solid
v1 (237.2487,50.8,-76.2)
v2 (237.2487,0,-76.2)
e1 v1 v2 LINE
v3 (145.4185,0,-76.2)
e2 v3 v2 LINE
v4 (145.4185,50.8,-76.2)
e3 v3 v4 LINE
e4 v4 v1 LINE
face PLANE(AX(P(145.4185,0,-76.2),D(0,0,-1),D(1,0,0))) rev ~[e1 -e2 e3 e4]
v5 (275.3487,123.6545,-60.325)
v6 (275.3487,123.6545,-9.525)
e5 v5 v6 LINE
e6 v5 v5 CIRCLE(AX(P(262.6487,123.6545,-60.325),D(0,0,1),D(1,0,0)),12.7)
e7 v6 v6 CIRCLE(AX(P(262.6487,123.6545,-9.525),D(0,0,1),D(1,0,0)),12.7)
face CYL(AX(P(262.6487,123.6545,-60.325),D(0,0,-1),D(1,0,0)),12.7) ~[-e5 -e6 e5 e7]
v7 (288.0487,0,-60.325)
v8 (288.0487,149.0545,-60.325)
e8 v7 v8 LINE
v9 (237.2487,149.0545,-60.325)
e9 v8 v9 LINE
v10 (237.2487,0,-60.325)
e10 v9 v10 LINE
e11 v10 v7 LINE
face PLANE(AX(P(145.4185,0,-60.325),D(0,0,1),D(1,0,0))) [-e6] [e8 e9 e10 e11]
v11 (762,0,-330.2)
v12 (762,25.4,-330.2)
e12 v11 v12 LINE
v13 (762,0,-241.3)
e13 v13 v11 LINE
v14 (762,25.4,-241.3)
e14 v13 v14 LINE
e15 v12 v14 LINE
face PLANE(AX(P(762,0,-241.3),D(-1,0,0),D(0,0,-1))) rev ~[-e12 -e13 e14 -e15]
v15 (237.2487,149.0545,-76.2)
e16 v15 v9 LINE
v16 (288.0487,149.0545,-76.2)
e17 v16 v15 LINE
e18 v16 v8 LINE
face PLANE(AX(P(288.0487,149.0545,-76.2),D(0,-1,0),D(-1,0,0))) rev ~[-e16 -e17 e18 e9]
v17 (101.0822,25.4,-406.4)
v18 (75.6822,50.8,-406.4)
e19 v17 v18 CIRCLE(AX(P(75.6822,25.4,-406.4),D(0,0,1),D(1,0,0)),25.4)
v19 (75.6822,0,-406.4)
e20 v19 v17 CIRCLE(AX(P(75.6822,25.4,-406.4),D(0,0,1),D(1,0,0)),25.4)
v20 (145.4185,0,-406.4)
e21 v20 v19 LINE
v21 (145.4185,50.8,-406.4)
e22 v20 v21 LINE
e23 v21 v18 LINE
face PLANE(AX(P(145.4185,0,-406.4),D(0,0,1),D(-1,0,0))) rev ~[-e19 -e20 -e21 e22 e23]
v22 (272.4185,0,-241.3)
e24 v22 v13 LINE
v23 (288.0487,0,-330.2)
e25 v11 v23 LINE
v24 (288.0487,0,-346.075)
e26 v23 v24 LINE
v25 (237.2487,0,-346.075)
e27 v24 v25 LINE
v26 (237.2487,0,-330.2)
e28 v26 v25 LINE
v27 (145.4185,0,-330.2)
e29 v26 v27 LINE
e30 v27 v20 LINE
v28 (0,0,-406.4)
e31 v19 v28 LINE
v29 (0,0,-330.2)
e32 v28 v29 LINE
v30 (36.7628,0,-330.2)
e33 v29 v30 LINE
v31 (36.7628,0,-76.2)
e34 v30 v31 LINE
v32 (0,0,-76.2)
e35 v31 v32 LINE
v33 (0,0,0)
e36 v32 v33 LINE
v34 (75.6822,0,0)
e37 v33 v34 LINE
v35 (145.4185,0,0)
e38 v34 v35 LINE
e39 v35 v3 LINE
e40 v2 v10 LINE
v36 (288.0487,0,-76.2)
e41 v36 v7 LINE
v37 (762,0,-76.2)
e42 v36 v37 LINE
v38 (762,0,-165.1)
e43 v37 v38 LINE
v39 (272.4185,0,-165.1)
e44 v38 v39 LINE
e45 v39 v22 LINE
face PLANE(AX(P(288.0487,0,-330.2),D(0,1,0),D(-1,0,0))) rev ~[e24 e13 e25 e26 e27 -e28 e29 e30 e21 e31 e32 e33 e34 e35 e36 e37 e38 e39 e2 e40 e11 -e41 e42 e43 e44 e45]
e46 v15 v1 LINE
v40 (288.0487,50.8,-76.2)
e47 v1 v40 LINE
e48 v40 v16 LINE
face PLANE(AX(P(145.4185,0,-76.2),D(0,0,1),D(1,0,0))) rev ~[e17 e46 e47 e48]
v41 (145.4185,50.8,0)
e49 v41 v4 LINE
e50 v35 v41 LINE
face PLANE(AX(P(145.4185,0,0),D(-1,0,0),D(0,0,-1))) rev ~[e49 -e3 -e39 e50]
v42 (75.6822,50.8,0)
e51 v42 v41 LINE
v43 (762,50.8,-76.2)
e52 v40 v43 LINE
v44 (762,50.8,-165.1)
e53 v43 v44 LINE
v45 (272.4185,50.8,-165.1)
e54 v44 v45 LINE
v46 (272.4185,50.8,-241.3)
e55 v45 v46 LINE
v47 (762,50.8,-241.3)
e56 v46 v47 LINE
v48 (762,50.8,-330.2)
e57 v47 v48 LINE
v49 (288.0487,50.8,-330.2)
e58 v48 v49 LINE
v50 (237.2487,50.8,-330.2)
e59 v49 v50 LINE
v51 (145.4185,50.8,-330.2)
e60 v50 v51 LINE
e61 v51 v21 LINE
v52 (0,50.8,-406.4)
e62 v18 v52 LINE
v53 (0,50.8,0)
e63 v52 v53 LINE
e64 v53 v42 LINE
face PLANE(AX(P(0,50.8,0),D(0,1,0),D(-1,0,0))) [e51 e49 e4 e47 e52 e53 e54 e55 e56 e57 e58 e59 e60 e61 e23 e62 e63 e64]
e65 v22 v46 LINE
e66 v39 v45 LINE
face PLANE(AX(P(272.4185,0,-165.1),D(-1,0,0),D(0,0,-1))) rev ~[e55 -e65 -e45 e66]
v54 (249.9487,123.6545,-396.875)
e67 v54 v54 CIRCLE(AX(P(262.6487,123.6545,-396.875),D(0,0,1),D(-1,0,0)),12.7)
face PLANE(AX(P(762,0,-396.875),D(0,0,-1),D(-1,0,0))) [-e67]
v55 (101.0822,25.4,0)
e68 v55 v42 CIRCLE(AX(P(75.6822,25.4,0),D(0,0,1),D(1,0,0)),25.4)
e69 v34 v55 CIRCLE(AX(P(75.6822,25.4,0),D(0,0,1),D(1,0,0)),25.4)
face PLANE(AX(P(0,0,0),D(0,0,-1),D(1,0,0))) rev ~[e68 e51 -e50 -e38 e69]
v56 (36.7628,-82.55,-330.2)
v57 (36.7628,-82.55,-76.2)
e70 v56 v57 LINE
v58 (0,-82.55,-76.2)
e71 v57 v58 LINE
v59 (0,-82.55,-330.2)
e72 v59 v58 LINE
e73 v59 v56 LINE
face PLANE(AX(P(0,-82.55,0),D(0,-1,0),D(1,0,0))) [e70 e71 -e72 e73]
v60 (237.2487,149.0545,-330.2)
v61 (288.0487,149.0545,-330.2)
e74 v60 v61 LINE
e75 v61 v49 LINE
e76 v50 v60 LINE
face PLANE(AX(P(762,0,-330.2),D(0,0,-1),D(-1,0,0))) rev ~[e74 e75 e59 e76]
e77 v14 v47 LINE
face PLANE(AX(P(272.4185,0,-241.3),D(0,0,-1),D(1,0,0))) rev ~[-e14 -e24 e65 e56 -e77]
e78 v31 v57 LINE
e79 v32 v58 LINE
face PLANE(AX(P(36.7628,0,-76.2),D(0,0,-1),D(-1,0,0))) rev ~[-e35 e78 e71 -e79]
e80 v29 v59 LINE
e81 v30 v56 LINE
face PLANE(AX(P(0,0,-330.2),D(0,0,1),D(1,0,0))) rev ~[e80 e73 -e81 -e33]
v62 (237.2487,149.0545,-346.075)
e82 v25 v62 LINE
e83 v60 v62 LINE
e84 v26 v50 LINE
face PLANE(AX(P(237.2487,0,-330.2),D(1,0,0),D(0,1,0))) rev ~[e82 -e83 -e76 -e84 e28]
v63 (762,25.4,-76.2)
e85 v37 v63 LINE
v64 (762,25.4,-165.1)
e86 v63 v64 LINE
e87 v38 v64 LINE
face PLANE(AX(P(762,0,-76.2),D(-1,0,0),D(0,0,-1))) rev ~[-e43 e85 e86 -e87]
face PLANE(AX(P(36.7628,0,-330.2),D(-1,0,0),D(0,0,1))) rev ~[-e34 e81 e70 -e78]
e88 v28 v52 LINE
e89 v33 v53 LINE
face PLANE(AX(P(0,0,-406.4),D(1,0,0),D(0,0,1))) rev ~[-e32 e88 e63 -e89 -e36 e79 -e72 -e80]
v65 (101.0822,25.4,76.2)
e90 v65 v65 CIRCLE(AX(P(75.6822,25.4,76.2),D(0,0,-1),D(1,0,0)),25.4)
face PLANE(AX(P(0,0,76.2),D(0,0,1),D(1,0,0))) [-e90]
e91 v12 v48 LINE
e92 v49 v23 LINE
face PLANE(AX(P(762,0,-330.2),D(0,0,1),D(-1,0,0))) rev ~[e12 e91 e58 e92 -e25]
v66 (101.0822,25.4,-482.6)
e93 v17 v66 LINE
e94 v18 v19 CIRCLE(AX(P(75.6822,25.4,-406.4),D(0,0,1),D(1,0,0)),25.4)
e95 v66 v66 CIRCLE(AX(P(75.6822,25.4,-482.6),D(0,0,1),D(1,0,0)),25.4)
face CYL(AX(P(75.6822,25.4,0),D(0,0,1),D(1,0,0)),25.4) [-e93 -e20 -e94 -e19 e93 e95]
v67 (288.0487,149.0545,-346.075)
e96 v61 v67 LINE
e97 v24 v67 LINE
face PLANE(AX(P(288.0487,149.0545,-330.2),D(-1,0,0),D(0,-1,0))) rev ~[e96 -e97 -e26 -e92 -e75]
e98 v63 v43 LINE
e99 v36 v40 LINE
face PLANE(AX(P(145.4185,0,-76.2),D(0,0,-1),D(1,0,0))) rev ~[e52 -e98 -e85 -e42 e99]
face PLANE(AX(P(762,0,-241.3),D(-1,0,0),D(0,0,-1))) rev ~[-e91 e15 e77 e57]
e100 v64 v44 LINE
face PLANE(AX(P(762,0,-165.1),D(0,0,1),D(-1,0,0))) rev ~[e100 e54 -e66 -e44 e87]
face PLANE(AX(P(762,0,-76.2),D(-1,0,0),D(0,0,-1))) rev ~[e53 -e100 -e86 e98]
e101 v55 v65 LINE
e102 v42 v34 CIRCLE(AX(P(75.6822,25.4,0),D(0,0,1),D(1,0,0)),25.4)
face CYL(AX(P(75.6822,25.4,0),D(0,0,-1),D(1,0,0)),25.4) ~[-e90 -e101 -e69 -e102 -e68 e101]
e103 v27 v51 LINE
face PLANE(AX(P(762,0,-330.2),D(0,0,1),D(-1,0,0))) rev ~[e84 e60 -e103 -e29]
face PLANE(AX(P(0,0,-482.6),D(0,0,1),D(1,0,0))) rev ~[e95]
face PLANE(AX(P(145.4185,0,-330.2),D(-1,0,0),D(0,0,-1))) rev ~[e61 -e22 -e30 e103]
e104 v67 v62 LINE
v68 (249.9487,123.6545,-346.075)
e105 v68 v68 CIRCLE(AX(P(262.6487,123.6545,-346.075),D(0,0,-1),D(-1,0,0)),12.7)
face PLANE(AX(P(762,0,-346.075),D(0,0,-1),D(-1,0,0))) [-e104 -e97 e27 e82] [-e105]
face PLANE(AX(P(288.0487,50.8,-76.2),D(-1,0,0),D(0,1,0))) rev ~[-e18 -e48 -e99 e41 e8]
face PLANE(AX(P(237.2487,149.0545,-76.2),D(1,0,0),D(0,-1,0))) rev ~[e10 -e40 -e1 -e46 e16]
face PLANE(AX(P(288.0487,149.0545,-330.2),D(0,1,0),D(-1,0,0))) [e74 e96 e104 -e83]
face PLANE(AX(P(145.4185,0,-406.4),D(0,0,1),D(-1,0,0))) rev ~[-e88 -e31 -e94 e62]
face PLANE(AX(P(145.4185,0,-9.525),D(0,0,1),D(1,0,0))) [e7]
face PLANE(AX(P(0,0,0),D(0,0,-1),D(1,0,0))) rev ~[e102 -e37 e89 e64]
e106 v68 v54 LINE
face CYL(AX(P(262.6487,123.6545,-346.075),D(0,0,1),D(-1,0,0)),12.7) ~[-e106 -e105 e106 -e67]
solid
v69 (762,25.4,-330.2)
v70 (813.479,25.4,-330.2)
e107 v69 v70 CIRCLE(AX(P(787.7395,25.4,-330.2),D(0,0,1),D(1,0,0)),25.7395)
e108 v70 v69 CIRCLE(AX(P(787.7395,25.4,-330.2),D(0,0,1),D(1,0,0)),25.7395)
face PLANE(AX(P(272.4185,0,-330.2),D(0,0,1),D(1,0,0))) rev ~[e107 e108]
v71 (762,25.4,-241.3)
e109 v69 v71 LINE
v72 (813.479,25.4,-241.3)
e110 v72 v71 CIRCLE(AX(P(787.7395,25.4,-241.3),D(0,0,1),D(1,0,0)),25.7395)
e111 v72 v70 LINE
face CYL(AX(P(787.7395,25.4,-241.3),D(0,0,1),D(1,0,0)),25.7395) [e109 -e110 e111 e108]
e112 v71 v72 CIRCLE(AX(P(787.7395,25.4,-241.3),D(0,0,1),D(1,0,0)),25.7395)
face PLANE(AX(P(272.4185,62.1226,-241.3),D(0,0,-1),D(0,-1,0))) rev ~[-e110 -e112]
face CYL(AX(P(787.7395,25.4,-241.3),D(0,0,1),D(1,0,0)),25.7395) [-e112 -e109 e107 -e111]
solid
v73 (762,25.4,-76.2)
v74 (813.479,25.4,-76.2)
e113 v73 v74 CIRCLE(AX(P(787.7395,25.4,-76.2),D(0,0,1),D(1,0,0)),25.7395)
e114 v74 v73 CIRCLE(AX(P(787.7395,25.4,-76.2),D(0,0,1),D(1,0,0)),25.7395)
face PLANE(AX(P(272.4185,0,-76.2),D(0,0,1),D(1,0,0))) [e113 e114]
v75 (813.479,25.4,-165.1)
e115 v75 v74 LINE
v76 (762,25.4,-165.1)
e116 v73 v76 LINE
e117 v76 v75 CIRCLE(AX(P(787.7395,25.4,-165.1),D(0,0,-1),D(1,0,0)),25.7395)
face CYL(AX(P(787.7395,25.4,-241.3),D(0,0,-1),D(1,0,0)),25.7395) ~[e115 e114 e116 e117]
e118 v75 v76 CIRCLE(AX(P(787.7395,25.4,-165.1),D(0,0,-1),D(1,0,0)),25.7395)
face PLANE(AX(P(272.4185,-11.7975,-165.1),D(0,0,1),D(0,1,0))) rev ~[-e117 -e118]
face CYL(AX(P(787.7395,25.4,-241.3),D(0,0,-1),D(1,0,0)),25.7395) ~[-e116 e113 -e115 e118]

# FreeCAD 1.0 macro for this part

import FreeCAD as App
import Part
import Sketcher
from FreeCAD import Vector
Q = App.Units.Quantity

doc = App.newDocument("Part")
body = doc.addObject("PartDesign::Body", "Body")
body.AllowCompound = True

sketch1 = body.newObject("Sketcher::SketchObject", "Sketch")
sketch1.AttachmentSupport = (doc.getObject("XZ_Plane"), [""])
sketch1.MapMode = "FlatFace"
sketch1.addGeometry(Part.LineSegment(Vector(0, -406, 0), Vector(0, 0, 0)), False)
sketch1.addGeometry(Part.LineSegment(Vector(0, 0, 0), Vector(145, 0, 0)), False)
sketch1.addGeometry(Part.LineSegment(Vector(145, 0, 0), Vector(145, -76, 0)), False)
sketch1.addGeometry(Part.LineSegment(Vector(145, -76, 0), Vector(762, -76, 0)), False)
sketch1.addGeometry(Part.LineSegment(Vector(762, -76, 0), Vector(762, -165, 0)), False)
sketch1.addGeometry(Part.LineSegment(Vector(762, -165, 0), Vector(272, -165, 0)), False)
sketch1.addGeometry(Part.LineSegment(Vector(272, -165, 0), Vector(272, -241, 0)), False)
sketch1.addGeometry(Part.LineSegment(Vector(272, -241, 0), Vector(762, -241, 0)), False)
sketch1.addGeometry(Part.LineSegment(Vector(762, -241, 0), Vector(762, -330, 0)), False)
sketch1.addGeometry(Part.LineSegment(Vector(762, -330, 0), Vector(145, -330, 0)), False)
sketch1.addGeometry(Part.LineSegment(Vector(145, -330, 0), Vector(145, -406, 0)), False)
sketch1.addGeometry(Part.LineSegment(Vector(145, -406, 0), Vector(0, -406, 0)), False)
sketch1.addConstraint(Sketcher.Constraint("Coincident", 0, 2, 1, 1))
sketch1.addConstraint(Sketcher.Constraint("Coincident", 1, 2, 2, 1))
sketch1.addConstraint(Sketcher.Constraint("Coincident", 2, 2, 3, 1))
sketch1.addConstraint(Sketcher.Constraint("Coincident", 3, 2, 4, 1))
sketch1.addConstraint(Sketcher.Constraint("Coincident", 4, 2, 5, 1))
sketch1.addConstraint(Sketcher.Constraint("Coincident", 5, 2, 6, 1))
sketch1.addConstraint(Sketcher.Constraint("Coincident", 6, 2, 7, 1))
sketch1.addConstraint(Sketcher.Constraint("Coincident", 7, 2, 8, 1))
sketch1.addConstraint(Sketcher.Constraint("Coincident", 8, 2, 9, 1))
sketch1.addConstraint(Sketcher.Constraint("Coincident", 9, 2, 10, 1))
sketch1.addConstraint(Sketcher.Constraint("Coincident", 10, 2, 11, 1))
sketch1.addConstraint(Sketcher.Constraint("Coincident", 11, 2, 0, 1))
sketch1.addConstraint(Sketcher.Constraint("Vertical", 0))
sketch1.addConstraint(Sketcher.Constraint("Horizontal", 1))
sketch1.addConstraint(Sketcher.Constraint("Vertical", 2))
sketch1.addConstraint(Sketcher.Constraint("Horizontal", 3))
sketch1.addConstraint(Sketcher.Constraint("Vertical", 4))
sketch1.addConstraint(Sketcher.Constraint("Horizontal", 5))
sketch1.addConstraint(Sketcher.Constraint("Vertical", 6))
sketch1.addConstraint(Sketcher.Constraint("Horizontal", 7))
sketch1.addConstraint(Sketcher.Constraint("Vertical", 8))
sketch1.addConstraint(Sketcher.Constraint("Horizontal", 9))
sketch1.addConstraint(Sketcher.Constraint("Vertical", 10))
sketch1.addConstraint(Sketcher.Constraint("Horizontal", 11))
sketch1.addConstraint(Sketcher.Constraint("Coincident", 0, 2, -1, 1))
sketch1.addConstraint(Sketcher.Constraint("Vertical", 4, 2, 7, 2))
sketch1.addConstraint(Sketcher.Constraint("Vertical", 2, 2, 9, 2))
sketch1.addConstraint(Sketcher.Constraint("Equal", 2, 6))
sketch1.addConstraint(Sketcher.Constraint("Equal", 4, 8))
sketch1.addConstraint(Sketcher.Constraint("Equal", 6, 10))
sketch1.addConstraint(Sketcher.Constraint("DistanceY", 0, 1, 0, 2, Q("16 in")))
sketch1.addConstraint(Sketcher.Constraint("DistanceY", 2, 2, 2, 1, Q("3 in")))
sketch1.addConstraint(Sketcher.Constraint("DistanceX", -1, 1, 3, 2, Q("30 in")))
sketch1.addConstraint(Sketcher.Constraint("DistanceX", 2, 2, 5, 2, Q("5 in")))
sketch1.addConstraint(Sketcher.Constraint("DistanceX", 1, 1, 1, 2, 145.4185))
pad1 = body.newObject("PartDesign::Pad", "Pad")
pad1.Profile = sketch1
pad1.Length = Q("2 in")
pad1.Reversed = True

sketch2 = body.newObject("Sketcher::SketchObject", "Sketch001")
sketch2.AttachmentSupport = (doc.getObject("XY_Plane"), [""])
sketch2.MapMode = "FlatFace"
sketch2.addGeometry(Part.Circle(Vector(76, 25, 0), Vector(0, 0, 1), 25), False)
sketch2.addConstraint(Sketcher.Constraint("Diameter", 0, Q("2 in")))
sketch2.addConstraint(Sketcher.Constraint("DistanceY", -1, 1, 0, 3, Q("1 in")))
sketch2.addConstraint(Sketcher.Constraint("DistanceX", -1, 1, 0, 3, 75.6822))
pad2 = body.newObject("PartDesign::Pad", "Pad001")
pad2.Profile = sketch2
pad2.Type = "TwoLengths"
pad2.Length = Q("3 in")
pad2.Length2 = Q("19 in")

sketch3 = body.newObject("Sketcher::SketchObject", "Sketch002")
sketch3.AttachmentSupport = (doc.getObject("XY_Plane"), [""])
sketch3.MapMode = "FlatFace"
sketch3.AttachmentOffset = App.Placement(Vector(0, 0, -3 * 25.4), App.Rotation())
sketch3.addGeometry(Part.LineSegment(Vector(237, 149, 0), Vector(237, 0, 0)), False)
sketch3.addGeometry(Part.LineSegment(Vector(237, 0, 0), Vector(288, 0, 0)), False)
sketch3.addGeometry(Part.LineSegment(Vector(288, 0, 0), Vector(288, 149, 0)), False)
sketch3.addGeometry(Part.LineSegment(Vector(288, 149, 0), Vector(237, 149, 0)), False)
sketch3.addConstraint(Sketcher.Constraint("Coincident", 0, 2, 1, 1))
sketch3.addConstraint(Sketcher.Constraint("Coincident", 1, 2, 2, 1))
sketch3.addConstraint(Sketcher.Constraint("Coincident", 2, 2, 3, 1))
sketch3.addConstraint(Sketcher.Constraint("Coincident", 3, 2, 0, 1))
sketch3.addConstraint(Sketcher.Constraint("Vertical", 0))
sketch3.addConstraint(Sketcher.Constraint("Horizontal", 1))
sketch3.addConstraint(Sketcher.Constraint("Vertical", 2))
sketch3.addConstraint(Sketcher.Constraint("Horizontal", 3))
sketch3.addConstraint(Sketcher.Constraint("PointOnObject", 0, 2, -1))
sketch3.addConstraint(Sketcher.Constraint("DistanceX", 1, 1, 1, 2, Q("2 in")))
sketch3.addConstraint(Sketcher.Constraint("DistanceY", 0, 2, 0, 1, 149.0545))
sketch3.addConstraint(Sketcher.Constraint("DistanceX", -1, 1, 0, 2, Q("9.3405 in")))
pad3 = body.newObject("PartDesign::Pad", "Pad002")
pad3.Profile = sketch3
pad3.Length = Q("0.625 in")

sketch4 = body.newObject("Sketcher::SketchObject", "Sketch003")
sketch4.AttachmentSupport = (doc.getObject("XY_Plane"), [""])
sketch4.MapMode = "FlatFace"
sketch4.AttachmentOffset = App.Placement(Vector(0, 0, -9.5 * 25.4), App.Rotation())
sketch4.addGeometry(Part.Circle(Vector(788, 25, 0), Vector(0, 0, 1), 26), False)
sketch4.addConstraint(Sketcher.Constraint("DistanceY", -1, 1, 0, 3, Q("1 in")))
sketch4.addConstraint(Sketcher.Constraint("Diameter", 0, 51.479))
sketch4.addConstraint(Sketcher.Constraint("DistanceX", -1, 1, 0, 3, 787.7395))
pad4 = body.newObject("PartDesign::Pad", "Pad003")
pad4.Profile = sketch4
pad4.Type = "TwoLengths"
pad4.Length = Q("6.5 in")
pad4.Length2 = Q("3.5 in")

sketch5 = body.newObject("Sketcher::SketchObject", "Sketch004")
sketch5.AttachmentSupport = (doc.getObject("XY_Plane"), [""])
sketch5.MapMode = "FlatFace"
sketch5.AttachmentOffset = App.Placement(Vector(0, 0, -13 * 25.4), App.Rotation())
sketch5.addGeometry(Part.LineSegment(Vector(288, 149, 0), Vector(288, 0, 0)), False)
sketch5.addGeometry(Part.LineSegment(Vector(288, 0, 0), Vector(237, 0, 0)), False)
sketch5.addGeometry(Part.LineSegment(Vector(237, 0, 0), Vector(237, 149, 0)), False)
sketch5.addGeometry(Part.LineSegment(Vector(237, 149, 0), Vector(288, 149, 0)), False)
sketch5.addConstraint(Sketcher.Constraint("Coincident", 0, 2, 1, 1))
sketch5.addConstraint(Sketcher.Constraint("Coincident", 1, 2, 2, 1))
sketch5.addConstraint(Sketcher.Constraint("Coincident", 2, 2, 3, 1))
sketch5.addConstraint(Sketcher.Constraint("Coincident", 3, 2, 0, 1))
sketch5.addConstraint(Sketcher.Constraint("Vertical", 0))
sketch5.addConstraint(Sketcher.Constraint("Horizontal", 1))
sketch5.addConstraint(Sketcher.Constraint("Vertical", 2))
sketch5.addConstraint(Sketcher.Constraint("Horizontal", 3))
sketch5.addConstraint(Sketcher.Constraint("PointOnObject", 0, 2, -1))
sketch5.addConstraint(Sketcher.Constraint("DistanceX", 1, 2, 1, 1, Q("2 in")))
sketch5.addConstraint(Sketcher.Constraint("DistanceY", 0, 2, 0, 1, 149.0545))
sketch5.addConstraint(Sketcher.Constraint("DistanceX", -1, 1, 0, 2, Q("11.3405 in")))
pad5 = body.newObject("PartDesign::Pad", "Pad004")
pad5.Profile = sketch5
pad5.Length = Q("0.625 in")
pad5.Reversed = True

sketch6 = body.newObject("Sketcher::SketchObject", "Sketch005")
sketch6.AttachmentSupport = (doc.getObject("YZ_Plane"), [""])
sketch6.MapMode = "FlatFace"
sketch6.AttachmentOffset = App.Placement(Vector(0, 0, 272.4185), App.Rotation())
sketch6.addGeometry(Part.LineSegment(Vector(-12, -165, 0), Vector(-12, -241, 0)), False)
sketch6.addGeometry(Part.LineSegment(Vector(-12, -241, 0), Vector(62, -241, 0)), False)
sketch6.addGeometry(Part.LineSegment(Vector(62, -241, 0), Vector(62, -165, 0)), False)
sketch6.addGeometry(Part.LineSegment(Vector(62, -165, 0), Vector(-12, -165, 0)), False)
sketch6.addConstraint(Sketcher.Constraint("Coincident", 0, 2, 1, 1))
sketch6.addConstraint(Sketcher.Constraint("Coincident", 1, 2, 2, 1))
sketch6.addConstraint(Sketcher.Constraint("Coincident", 2, 2, 3, 1))
sketch6.addConstraint(Sketcher.Constraint("Coincident", 3, 2, 0, 1))
sketch6.addConstraint(Sketcher.Constraint("Vertical", 0))
sketch6.addConstraint(Sketcher.Constraint("Horizontal", 1))
sketch6.addConstraint(Sketcher.Constraint("Vertical", 2))
sketch6.addConstraint(Sketcher.Constraint("Horizontal", 3))
sketch6.addConstraint(Sketcher.Constraint("DistanceY", 0, 2, 0, 1, Q("3 in")))
sketch6.addConstraint(Sketcher.Constraint("DistanceY", 0, 2, -1, 1, Q("9.5 in")))
sketch6.addConstraint(Sketcher.Constraint("DistanceX", 1, 1, 1, 2, 73.92))
sketch6.addConstraint(Sketcher.Constraint("DistanceX", 0, 2, -1, 1, 11.7975))
pocket1 = body.newObject("PartDesign::Pocket", "Pocket")
pocket1.Profile = sketch6
pocket1.Length = Q("33.25 in")
pocket1.Reversed = True

sketch7 = body.newObject("Sketcher::SketchObject", "Sketch006")
sketch7.AttachmentSupport = (doc.getObject("XY_Plane"), [""])
sketch7.MapMode = "FlatFace"
sketch7.AttachmentOffset = App.Placement(Vector(0, 0, -13.625 * 25.4), App.Rotation())
sketch7.addGeometry(Part.Circle(Vector(263, 124, 0), Vector(0, 0, 1), 13), False)
sketch7.addConstraint(Sketcher.Constraint("Diameter", 0, Q("1 in")))
sketch7.addConstraint(Sketcher.Constraint("DistanceX", -1, 1, 0, 3, Q("10.3405 in")))
sketch7.addConstraint(Sketcher.Constraint("DistanceY", -1, 1, 0, 3, 123.6545))
pad6 = body.newObject("PartDesign::Pad", "Pad005")
pad6.Profile = sketch7
pad6.Length = Q("2 in")
pad6.Reversed = True

sketch8 = body.newObject("Sketcher::SketchObject", "Sketch007")
sketch8.AttachmentSupport = (doc.getObject("XY_Plane"), [""])
sketch8.MapMode = "FlatFace"
sketch8.AttachmentOffset = App.Placement(Vector(0, 0, -2.375 * 25.4), App.Rotation())
sketch8.addGeometry(Part.Circle(Vector(263, 124, 0), Vector(0, 0, 1), 13), False)
sketch8.addConstraint(Sketcher.Constraint("Diameter", 0, Q("1 in")))
sketch8.addConstraint(Sketcher.Constraint("DistanceX", -1, 1, 0, 3, Q("10.3405 in")))
sketch8.addConstraint(Sketcher.Constraint("DistanceY", -1, 1, 0, 3, 123.6545))
pad7 = body.newObject("PartDesign::Pad", "Pad006")
pad7.Profile = sketch8
pad7.Length = Q("2 in")

sketch9 = body.newObject("Sketcher::SketchObject", "Sketch008")
sketch9.AttachmentSupport = (doc.getObject("XZ_Plane"), [""])
sketch9.MapMode = "FlatFace"
sketch9.addGeometry(Part.LineSegment(Vector(0, -76, 0), Vector(0, -330, 0)), False)
sketch9.addGeometry(Part.LineSegment(Vector(0, -330, 0), Vector(37, -330, 0)), False)
sketch9.addGeometry(Part.LineSegment(Vector(37, -330, 0), Vector(37, -76, 0)), False)
sketch9.addGeometry(Part.LineSegment(Vector(37, -76, 0), Vector(0, -76, 0)), False)
sketch9.addConstraint(Sketcher.Constraint("Coincident", 0, 2, 1, 1))
sketch9.addConstraint(Sketcher.Constraint("Coincident", 1, 2, 2, 1))
sketch9.addConstraint(Sketcher.Constraint("Coincident", 2, 2, 3, 1))
sketch9.addConstraint(Sketcher.Constraint("Coincident", 3, 2, 0, 1))
sketch9.addConstraint(Sketcher.Constraint("Vertical", 0))
sketch9.addConstraint(Sketcher.Constraint("Horizontal", 1))
sketch9.addConstraint(Sketcher.Constraint("Vertical", 2))
sketch9.addConstraint(Sketcher.Constraint("Horizontal", 3))
sketch9.addConstraint(Sketcher.Constraint("PointOnObject", 0, 2, -2))
sketch9.addConstraint(Sketcher.Constraint("DistanceY", 0, 2, 0, 1, Q("10 in")))
sketch9.addConstraint(Sketcher.Constraint("DistanceY", 0, 2, -1, 1, Q("13 in")))
sketch9.addConstraint(Sketcher.Constraint("DistanceX", 1, 1, 1, 2, 36.7628))
pad8 = body.newObject("PartDesign::Pad", "Pad007")
pad8.Profile = sketch9
pad8.Length = Q("3.25 in")

doc.recompute()
